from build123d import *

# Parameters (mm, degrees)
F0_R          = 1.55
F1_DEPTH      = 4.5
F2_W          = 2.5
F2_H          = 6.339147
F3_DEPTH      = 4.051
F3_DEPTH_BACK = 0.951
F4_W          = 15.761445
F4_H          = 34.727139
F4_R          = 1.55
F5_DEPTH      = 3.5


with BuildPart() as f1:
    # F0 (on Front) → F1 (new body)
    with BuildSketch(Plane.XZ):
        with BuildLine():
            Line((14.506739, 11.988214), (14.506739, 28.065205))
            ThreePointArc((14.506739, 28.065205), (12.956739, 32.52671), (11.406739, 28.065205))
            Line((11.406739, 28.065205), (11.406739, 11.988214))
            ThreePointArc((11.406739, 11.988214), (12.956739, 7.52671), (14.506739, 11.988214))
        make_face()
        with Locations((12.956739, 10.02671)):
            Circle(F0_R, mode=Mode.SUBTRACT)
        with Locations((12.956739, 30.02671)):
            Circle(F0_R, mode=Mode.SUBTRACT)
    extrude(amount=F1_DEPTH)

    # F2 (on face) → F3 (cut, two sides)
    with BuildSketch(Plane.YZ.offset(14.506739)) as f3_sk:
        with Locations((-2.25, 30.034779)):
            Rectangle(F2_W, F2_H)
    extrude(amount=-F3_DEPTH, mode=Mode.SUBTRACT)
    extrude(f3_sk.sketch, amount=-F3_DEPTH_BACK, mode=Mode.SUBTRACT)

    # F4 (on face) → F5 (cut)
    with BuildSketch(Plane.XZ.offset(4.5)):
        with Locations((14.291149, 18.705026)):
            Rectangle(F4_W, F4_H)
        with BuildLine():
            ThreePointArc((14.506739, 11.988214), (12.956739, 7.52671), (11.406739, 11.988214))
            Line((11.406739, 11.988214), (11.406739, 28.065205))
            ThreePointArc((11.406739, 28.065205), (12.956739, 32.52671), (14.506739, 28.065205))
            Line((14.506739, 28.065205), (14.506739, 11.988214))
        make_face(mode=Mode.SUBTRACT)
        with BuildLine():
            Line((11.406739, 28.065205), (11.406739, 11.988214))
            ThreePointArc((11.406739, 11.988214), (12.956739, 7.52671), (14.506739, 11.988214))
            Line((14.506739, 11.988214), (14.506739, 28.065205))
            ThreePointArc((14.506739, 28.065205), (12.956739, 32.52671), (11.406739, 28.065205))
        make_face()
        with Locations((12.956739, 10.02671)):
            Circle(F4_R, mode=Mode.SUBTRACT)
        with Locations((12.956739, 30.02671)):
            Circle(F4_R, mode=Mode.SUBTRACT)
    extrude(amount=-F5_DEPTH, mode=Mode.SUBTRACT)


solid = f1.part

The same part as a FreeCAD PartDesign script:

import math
import FreeCAD as App
import Part
import Sketcher

doc = App.newDocument("Part")
params = doc.addObject("Spreadsheet::Sheet", "Params")
for row, (alias, value) in enumerate([
    ("sketch1_diameter", "3.1 mm"),
    ("sketch1_radius", "2.5 mm"),
    ("pad1_length", "4.5 mm"),
    ("sketch2_width", "2.5 mm"),
    ("pocket1_length", "4.051 mm"),
    ("pocket2_length", "0.951 mm"),
    ("sketch3_diameter", "3.1 mm"),
    ("pocket3_length", "3.5 mm"),
], start=1):
    params.set(f"A{row}", alias)
    params.set(f"B{row}", "=" + value)
    params.setAlias(f"B{row}", alias)

body = doc.addObject("PartDesign::Body", "Body")

sketch1 = body.newObject("Sketcher::SketchObject", "Sketch")
sketch1.AttachmentSupport = (doc.getObject("XZ_Plane"), [""])
sketch1.MapMode = "FlatFace"
sketch1.addGeometry([
    Part.LineSegment(App.Vector(14.5, 12, 0), App.Vector(14.5, 28.1, 0)),
    Part.ArcOfCircle(Part.Circle(App.Vector(13, 30, 0), App.Vector(0, 0, 1), 2.5), math.radians(-52), math.radians(232)),
    Part.LineSegment(App.Vector(11.4, 28.1, 0), App.Vector(11.4, 12, 0)),
    Part.ArcOfCircle(Part.Circle(App.Vector(13, 10, 0), App.Vector(0, 0, 1), 2.5), math.radians(128), math.radians(412)),
    Part.Circle(App.Vector(13, 10, 0), App.Vector(0, 0, 1), 1.6),
    Part.Circle(App.Vector(13, 30, 0), App.Vector(0, 0, 1), 1.6),
], False)
sketch1.addConstraint([
    Sketcher.Constraint("Coincident", 0, 2, 1, 1),
    Sketcher.Constraint("Coincident", 1, 2, 2, 1),
    Sketcher.Constraint("Coincident", 2, 2, 3, 1),
    Sketcher.Constraint("Coincident", 3, 2, 0, 1),
    Sketcher.Constraint("Vertical", 0),
    Sketcher.Constraint("Vertical", 2),
    Sketcher.Constraint("Coincident", 4, 3, 3, 3),
    Sketcher.Constraint("Coincident", 5, 3, 1, 3),
    Sketcher.Constraint("Equal", 1, 3),
    Sketcher.Constraint("Equal", 4, 5),
    Sketcher.Constraint("Horizontal", 0, 2, 1, 2),
    Sketcher.Constraint("Horizontal", 2, 2, 3, 2),
    Sketcher.Constraint("Diameter", 4, 3.1),
    Sketcher.Constraint("Radius", 1, 2.5),
    Sketcher.Constraint("DistanceY", 3, 3, 1, 3, 20.0),
    Sketcher.Constraint("DistanceX", 1, 2, 0, 2, 3.1),
    Sketcher.Constraint("DistanceX", -1, 1, 1, 3, 12.956739),
    Sketcher.Constraint("DistanceY", -1, 1, 1, 3, 30.02671),
])
sketch1.setExpression("Constraints[12]", "Params.sketch1_diameter")
sketch1.setExpression("Constraints[13]", "Params.sketch1_radius")
pad1 = body.newObject("PartDesign::Pad", "Pad")
pad1.Profile = sketch1
pad1.setExpression("Length", "Params.pad1_length")

sketch2 = body.newObject("Sketcher::SketchObject", "Sketch001")
sketch2.AttachmentSupport = (doc.getObject("YZ_Plane"), [""])
sketch2.MapMode = "FlatFace"
sketch2.AttachmentOffset = App.Placement(App.Vector(0, 0, 14.506739), App.Rotation())
sketch2.addGeometry([
    Part.LineSegment(App.Vector(-3.5, 33.2, 0), App.Vector(-3.5, 26.9, 0)),
    Part.LineSegment(App.Vector(-3.5, 26.9, 0), App.Vector(-1, 26.9, 0)),
    Part.LineSegment(App.Vector(-1, 26.9, 0), App.Vector(-1, 33.2, 0)),
    Part.LineSegment(App.Vector(-1, 33.2, 0), App.Vector(-3.5, 33.2, 0)),
], False)
sketch2.addConstraint([
    Sketcher.Constraint("Coincident", 0, 2, 1, 1),
    Sketcher.Constraint("Coincident", 1, 2, 2, 1),
    Sketcher.Constraint("Coincident", 2, 2, 3, 1),
    Sketcher.Constraint("Coincident", 3, 2, 0, 1),
    Sketcher.Constraint("Vertical", 0),
    Sketcher.Constraint("Horizontal", 1),
    Sketcher.Constraint("Vertical", 2),
    Sketcher.Constraint("Horizontal", 3),
    Sketcher.Constraint("DistanceX", 1, 1, 1, 2, 2.5),
    Sketcher.Constraint("DistanceX", 1, 2, -1, 1, 1.0),
    Sketcher.Constraint("DistanceY", 0, 2, 0, 1, 6.339147),
    Sketcher.Constraint("DistanceY", -1, 1, 0, 2, 26.865205),
])
sketch2.setExpression("Constraints[8]", "Params.sketch2_width")
pocket1 = body.newObject("PartDesign::Pocket", "Pocket")
pocket1.Profile = sketch2
pocket1.setExpression("Length", "Params.pocket1_length")
pocket2 = body.newObject("PartDesign::Pocket", "Pocket001")
pocket2.Profile = sketch2
pocket2.setExpression("Length", "Params.pocket2_length")

sketch3 = body.newObject("Sketcher::SketchObject", "Sketch002")
sketch3.AttachmentSupport = (doc.getObject("XZ_Plane"), [""])
sketch3.MapMode = "FlatFace"
sketch3.AttachmentOffset = App.Placement(App.Vector(0, 0, 4.5), App.Rotation())
sketch3.addGeometry([
    Part.LineSegment(App.Vector(6.4, 36.1, 0), App.Vector(6.4, 1.3, 0)),
    Part.LineSegment(App.Vector(6.4, 1.3, 0), App.Vector(22.2, 1.3, 0)),
    Part.LineSegment(App.Vector(22.2, 1.3, 0), App.Vector(22.2, 36.1, 0)),
    Part.LineSegment(App.Vector(22.2, 36.1, 0), App.Vector(6.4, 36.1, 0)),
    Part.Circle(App.Vector(13, 10, 0), App.Vector(0, 0, 1), 1.6),
    Part.Circle(App.Vector(13, 30, 0), App.Vector(0, 0, 1), 1.6),
], False)
sketch3.addConstraint([
    Sketcher.Constraint("Coincident", 0, 2, 1, 1),
    Sketcher.Constraint("Coincident", 1, 2, 2, 1),
    Sketcher.Constraint("Coincident", 2, 2, 3, 1),
    Sketcher.Constraint("Coincident", 3, 2, 0, 1),
    Sketcher.Constraint("Vertical", 0),
    Sketcher.Constraint("Horizontal", 1),
    Sketcher.Constraint("Vertical", 2),
    Sketcher.Constraint("Horizontal", 3),
    Sketcher.Constraint("Equal", 4, 5),
    Sketcher.Constraint("Vertical", 4, 3, 5, 3),
    Sketcher.Constraint("Diameter", 4, 3.1),
    Sketcher.Constraint("DistanceY", 4, 3, 5, 3, 20.0),
    Sketcher.Constraint("DistanceY", 0, 2, 0, 1, 34.727139),
    Sketcher.Constraint("DistanceX", 1, 1, 1, 2, 15.761445),
    Sketcher.Constraint("DistanceX", -1, 1, 4, 3, 12.956739),
    Sketcher.Constraint("DistanceY", -1, 1, 4, 3, 10.02671),
    Sketcher.Constraint("DistanceX", -1, 1, 1, 2, 22.171872),
    Sketcher.Constraint("DistanceY", -1, 1, 0, 2, 1.341457),
])
sketch3.setExpression("Constraints[10]", "Params.sketch3_diameter")
pocket3 = body.newObject("PartDesign::Pocket", "Pocket002")
pocket3.Profile = sketch3
pocket3.setExpression("Length", "Params.pocket3_length")

doc.recompute()
